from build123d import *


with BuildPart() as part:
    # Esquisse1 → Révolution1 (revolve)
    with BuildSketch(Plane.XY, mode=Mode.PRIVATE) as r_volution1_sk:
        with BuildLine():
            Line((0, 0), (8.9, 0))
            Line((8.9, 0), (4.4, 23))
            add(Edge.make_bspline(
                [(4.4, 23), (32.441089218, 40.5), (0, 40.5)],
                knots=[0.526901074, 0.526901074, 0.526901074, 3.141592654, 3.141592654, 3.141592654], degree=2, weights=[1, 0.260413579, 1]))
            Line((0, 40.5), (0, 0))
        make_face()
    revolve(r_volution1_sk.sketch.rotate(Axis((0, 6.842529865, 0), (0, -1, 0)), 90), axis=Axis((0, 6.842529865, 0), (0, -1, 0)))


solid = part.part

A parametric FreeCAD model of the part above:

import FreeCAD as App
import Part
import Sketcher

doc = App.newDocument("Part")
params = doc.addObject("Spreadsheet::Sheet", "Params")
for row, (alias, value) in enumerate([
    ("sketch1_width", "8.9 mm"),
    ("revolution_angle", "360 deg"),
], start=1):
    params.set(f"A{row}", alias)
    params.set(f"B{row}", "=" + value)
    params.setAlias(f"B{row}", alias)

body = doc.addObject("PartDesign::Body", "Body")

# Sketch on XY plane
sketch1 = body.newObject("Sketcher::SketchObject", "Sketch")
sketch1.AttachmentSupport = (doc.getObject("XY_Plane"), [""])
sketch1.MapMode = "FlatFace"
sketch1.addGeometry([
    Part.LineSegment(App.Vector(0, 0, 0), App.Vector(8.9, 0, 0)),
    Part.LineSegment(App.Vector(8.9, 0, 0), App.Vector(4.4, 23, 0)),
    Part.BSplineCurve([App.Vector(4.4, 23, 0), App.Vector(32.441089, 40.5, 0), App.Vector(0, 40.5, 0)], [3, 3], [0.526901074, 3.141592654], False, 2, [1, 0.260413579, 1], False),
    Part.LineSegment(App.Vector(0, 40.5, 0), App.Vector(0, 0, 0)),
], False)
sketch1.addConstraint([
    Sketcher.Constraint("Block", 2),
    Sketcher.Constraint("Coincident", 0, 2, 1, 1),
    Sketcher.Constraint("Coincident", 1, 2, 2, 1),
    Sketcher.Constraint("Coincident", 2, 2, 3, 1),
    Sketcher.Constraint("Coincident", 3, 2, 0, 1),
    Sketcher.Constraint("Horizontal", 0),
    Sketcher.Constraint("Vertical", 3),
    Sketcher.Constraint("PointOnObject", 0, 2, -1),
    Sketcher.Constraint("DistanceX", 0, 1, 0, 2, 8.9),
])
sketch1.setExpression("Constraints[8]", "Params.sketch1_width")
revolution = body.newObject("PartDesign::Revolution", "Revolution")
revolution.Profile = sketch1
revolution.ReferenceAxis = (sketch1, ["V_Axis"])
revolution.setExpression("Angle", "Params.revolution_angle")

doc.recompute()
